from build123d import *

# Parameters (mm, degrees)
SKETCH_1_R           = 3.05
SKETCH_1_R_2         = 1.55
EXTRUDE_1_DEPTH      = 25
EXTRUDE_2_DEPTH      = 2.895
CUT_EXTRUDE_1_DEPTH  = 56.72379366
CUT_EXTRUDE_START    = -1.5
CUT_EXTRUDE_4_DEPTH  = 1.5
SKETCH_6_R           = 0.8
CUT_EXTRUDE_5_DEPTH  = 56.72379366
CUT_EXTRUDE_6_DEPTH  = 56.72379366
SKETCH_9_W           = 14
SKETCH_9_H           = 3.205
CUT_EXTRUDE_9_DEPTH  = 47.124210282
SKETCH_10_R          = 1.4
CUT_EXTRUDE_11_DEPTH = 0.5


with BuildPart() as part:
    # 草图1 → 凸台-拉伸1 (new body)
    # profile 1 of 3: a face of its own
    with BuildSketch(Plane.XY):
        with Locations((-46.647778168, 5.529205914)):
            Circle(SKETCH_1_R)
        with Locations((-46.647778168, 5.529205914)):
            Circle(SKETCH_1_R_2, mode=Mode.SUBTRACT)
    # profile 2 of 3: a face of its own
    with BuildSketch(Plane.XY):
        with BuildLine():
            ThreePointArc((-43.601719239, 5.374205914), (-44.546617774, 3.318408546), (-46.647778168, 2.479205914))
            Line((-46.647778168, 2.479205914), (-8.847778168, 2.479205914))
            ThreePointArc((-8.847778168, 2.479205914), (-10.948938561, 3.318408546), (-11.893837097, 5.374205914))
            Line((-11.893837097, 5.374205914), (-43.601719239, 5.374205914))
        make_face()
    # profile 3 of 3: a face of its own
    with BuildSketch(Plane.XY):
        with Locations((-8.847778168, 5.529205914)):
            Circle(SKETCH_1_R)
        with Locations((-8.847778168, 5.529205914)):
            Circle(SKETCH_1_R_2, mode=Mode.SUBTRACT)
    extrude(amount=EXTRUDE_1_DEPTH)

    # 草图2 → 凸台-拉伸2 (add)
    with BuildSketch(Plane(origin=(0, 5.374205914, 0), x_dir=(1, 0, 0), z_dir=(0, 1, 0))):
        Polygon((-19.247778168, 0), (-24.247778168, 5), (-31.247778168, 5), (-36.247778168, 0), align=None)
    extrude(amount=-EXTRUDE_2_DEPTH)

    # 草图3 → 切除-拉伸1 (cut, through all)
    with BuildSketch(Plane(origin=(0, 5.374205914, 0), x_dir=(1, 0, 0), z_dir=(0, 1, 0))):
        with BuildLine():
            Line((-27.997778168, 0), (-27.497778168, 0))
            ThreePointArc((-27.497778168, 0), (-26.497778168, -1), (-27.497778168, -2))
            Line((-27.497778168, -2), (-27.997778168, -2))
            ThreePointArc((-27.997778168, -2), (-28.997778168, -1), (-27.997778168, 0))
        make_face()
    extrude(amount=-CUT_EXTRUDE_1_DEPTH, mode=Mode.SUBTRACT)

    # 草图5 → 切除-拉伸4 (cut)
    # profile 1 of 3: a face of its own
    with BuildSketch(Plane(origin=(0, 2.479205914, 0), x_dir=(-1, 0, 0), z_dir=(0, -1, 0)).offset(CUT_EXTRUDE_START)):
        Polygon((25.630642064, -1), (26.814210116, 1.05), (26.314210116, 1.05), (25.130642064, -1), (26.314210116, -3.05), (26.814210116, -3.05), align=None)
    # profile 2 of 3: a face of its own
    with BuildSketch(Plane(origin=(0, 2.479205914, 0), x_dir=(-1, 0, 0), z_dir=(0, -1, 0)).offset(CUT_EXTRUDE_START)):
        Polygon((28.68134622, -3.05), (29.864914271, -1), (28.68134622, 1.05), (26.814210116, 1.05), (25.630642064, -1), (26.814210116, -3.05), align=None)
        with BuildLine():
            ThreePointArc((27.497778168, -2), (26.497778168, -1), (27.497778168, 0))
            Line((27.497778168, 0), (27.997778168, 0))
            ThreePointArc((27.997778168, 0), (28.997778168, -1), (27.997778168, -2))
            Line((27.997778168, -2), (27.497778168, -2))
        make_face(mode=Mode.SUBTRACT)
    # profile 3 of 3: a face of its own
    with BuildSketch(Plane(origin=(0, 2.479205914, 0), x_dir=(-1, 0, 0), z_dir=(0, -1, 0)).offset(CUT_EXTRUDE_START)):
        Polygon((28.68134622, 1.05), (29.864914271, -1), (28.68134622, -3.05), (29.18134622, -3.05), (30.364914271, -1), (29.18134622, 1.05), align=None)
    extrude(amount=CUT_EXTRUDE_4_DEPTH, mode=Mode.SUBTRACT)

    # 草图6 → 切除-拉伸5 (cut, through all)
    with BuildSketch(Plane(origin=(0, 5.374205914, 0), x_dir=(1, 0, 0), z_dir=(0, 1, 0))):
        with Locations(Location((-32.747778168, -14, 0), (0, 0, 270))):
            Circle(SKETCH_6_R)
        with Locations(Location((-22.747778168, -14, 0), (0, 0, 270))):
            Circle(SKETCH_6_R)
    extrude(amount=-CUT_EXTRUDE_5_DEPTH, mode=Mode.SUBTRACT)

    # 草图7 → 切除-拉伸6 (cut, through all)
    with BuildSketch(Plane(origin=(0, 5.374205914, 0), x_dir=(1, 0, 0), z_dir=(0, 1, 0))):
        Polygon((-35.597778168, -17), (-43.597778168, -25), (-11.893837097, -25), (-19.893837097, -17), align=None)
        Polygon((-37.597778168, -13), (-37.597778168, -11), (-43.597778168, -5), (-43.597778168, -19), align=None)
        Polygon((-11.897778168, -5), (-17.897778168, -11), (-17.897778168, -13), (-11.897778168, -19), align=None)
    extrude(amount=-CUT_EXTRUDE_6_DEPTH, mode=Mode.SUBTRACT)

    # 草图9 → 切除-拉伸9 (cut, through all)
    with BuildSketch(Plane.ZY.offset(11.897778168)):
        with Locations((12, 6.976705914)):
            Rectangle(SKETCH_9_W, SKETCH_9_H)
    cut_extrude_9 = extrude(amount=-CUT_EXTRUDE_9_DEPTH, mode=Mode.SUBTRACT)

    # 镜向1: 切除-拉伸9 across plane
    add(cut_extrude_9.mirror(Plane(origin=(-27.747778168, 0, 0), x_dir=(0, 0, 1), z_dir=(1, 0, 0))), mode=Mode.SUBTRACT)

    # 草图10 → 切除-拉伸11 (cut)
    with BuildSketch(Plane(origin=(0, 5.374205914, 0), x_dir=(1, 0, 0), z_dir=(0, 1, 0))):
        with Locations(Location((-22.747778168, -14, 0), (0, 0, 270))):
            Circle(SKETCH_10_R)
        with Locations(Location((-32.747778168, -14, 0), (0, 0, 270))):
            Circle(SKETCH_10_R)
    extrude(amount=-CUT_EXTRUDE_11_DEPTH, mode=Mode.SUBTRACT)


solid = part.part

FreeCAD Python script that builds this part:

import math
import FreeCAD as App
import Part
import Sketcher
Q = App.Units.Quantity


def add_polygon(sketch, points):
    """Adds a closed chain of lines whose ends are joined by coincident constraints."""
    first, n = sketch.GeometryCount, len(points)
    for a, b in zip(points, points[1:] + points[:1]):
        sketch.addGeometry(Part.LineSegment(App.Vector(*a, 0), App.Vector(*b, 0)), False)
    for i in range(n):
        sketch.addConstraint(Sketcher.Constraint("Coincident", first + i, 2, first + (i + 1) % n, 1))

doc = App.newDocument("Part")
body = doc.addObject("PartDesign::Body", "Body")

sketch1 = body.newObject("Sketcher::SketchObject", "Sketch")
sketch1.AttachmentSupport = (doc.getObject("XY_Plane"), [""])
sketch1.MapMode = "FlatFace"
sketch1.addGeometry([
    Part.LineSegment(App.Vector(-46.6, 2.5, 0), App.Vector(-8.8, 2.5, 0)),
    Part.ArcOfCircle(Part.Circle(App.Vector(-8.8, 5.5, 0), App.Vector(0, 0, 1), 3), math.radians(-90), math.radians(183)),
    Part.LineSegment(App.Vector(-11.9, 5.4, 0), App.Vector(-43.6, 5.4, 0)),
    Part.ArcOfCircle(Part.Circle(App.Vector(-46.6, 5.5, 0), App.Vector(0, 0, 1), 3), math.radians(-3), math.radians(270)),
    Part.Circle(App.Vector(-46.6, 5.5, 0), App.Vector(0, 0, 1), 1.6),
    Part.Circle(App.Vector(-8.8, 5.5, 0), App.Vector(0, 0, 1), 1.6),
], False)
sketch1.addConstraint([
    Sketcher.Constraint("Tangent", 0, 2, 1, 1),
    Sketcher.Constraint("Coincident", 1, 2, 2, 1),
    Sketcher.Constraint("Coincident", 2, 2, 3, 1),
    Sketcher.Constraint("Tangent", 3, 2, 0, 1),
    Sketcher.Constraint("Horizontal", 0),
    Sketcher.Constraint("Horizontal", 2),
    Sketcher.Constraint("Coincident", 4, 3, 3, 3),
    Sketcher.Constraint("Coincident", 5, 3, 1, 3),
    Sketcher.Constraint("Equal", 1, 3),
    Sketcher.Constraint("Equal", 4, 5),
    Sketcher.Constraint("Diameter", 4, Q("3.1 mm")),
    Sketcher.Constraint("Radius", 1, Q("3.05 mm")),
    Sketcher.Constraint("DistanceX", 0, 1, 0, 2, Q("37.8 mm")),
    Sketcher.Constraint("DistanceY", 1, 2, 1, 3, Q("0.155 mm")),
    Sketcher.Constraint("DistanceX", 1, 3, -1, 1, Q("8.847778 mm")),
    Sketcher.Constraint("DistanceY", -1, 1, 1, 3, Q("5.529206 mm")),
])
pad1 = body.newObject("PartDesign::Pad", "Pad")
pad1.Profile = sketch1
pad1.Length = 25

sketch2 = body.newObject("Sketcher::SketchObject", "Sketch001")
sketch2.AttachmentSupport = (doc.getObject("XZ_Plane"), [""])
sketch2.MapMode = "FlatFace"
sketch2.AttachmentOffset = App.Placement(App.Vector(0, 0, -5.374206), App.Rotation())
add_polygon(sketch2, [(-19, 0), (-24, -5), (-31, -5), (-36, 0)])
sketch2.addConstraint([
    Sketcher.Constraint("Horizontal", 1),
    Sketcher.Constraint("Horizontal", 3),
    Sketcher.Constraint("PointOnObject", 2, 2, -1),
    Sketcher.Constraint("Perpendicular", 0, 2),
    Sketcher.Constraint("Equal", 0, 2),
    Sketcher.Constraint("DistanceX", 1, 2, 1, 1, Q("7 mm")),
    Sketcher.Constraint("DistanceX", 3, 1, 3, 2, Q("17 mm")),
    Sketcher.Constraint("DistanceX", 0, 2, -1, 1, Q("24.247778 mm")),
])
pad2 = body.newObject("PartDesign::Pad", "Pad001")
pad2.Profile = sketch2
pad2.Length = 2.895

sketch3 = body.newObject("Sketcher::SketchObject", "Sketch002")
sketch3.AttachmentSupport = (doc.getObject("XZ_Plane"), [""])
sketch3.MapMode = "FlatFace"
sketch3.AttachmentOffset = App.Placement(App.Vector(0, 0, -5.374206), App.Rotation())
sketch3.addGeometry([
    Part.LineSegment(App.Vector(-27.5, 0, 0), App.Vector(-28, 0, 0)),
    Part.ArcOfCircle(Part.Circle(App.Vector(-28, 1, 0), App.Vector(0, 0, 1), 1), math.radians(90), math.radians(270)),
    Part.LineSegment(App.Vector(-28, 2, 0), App.Vector(-27.5, 2, 0)),
    Part.ArcOfCircle(Part.Circle(App.Vector(-27.5, 1, 0), App.Vector(0, 0, 1), 1), math.radians(-90), math.radians(90)),
], False)
sketch3.addConstraint([
    Sketcher.Constraint("Tangent", 0, 2, 1, 2),
    Sketcher.Constraint("Tangent", 1, 1, 2, 1),
    Sketcher.Constraint("Tangent", 2, 2, 3, 2),
    Sketcher.Constraint("Tangent", 3, 1, 0, 1),
    Sketcher.Constraint("Horizontal", 0),
    Sketcher.Constraint("Horizontal", 2),
    Sketcher.Constraint("PointOnObject", 0, 2, -1),
    Sketcher.Constraint("Radius", 1, Q("1 mm")),
    Sketcher.Constraint("DistanceX", 0, 2, 0, 1, Q("0.5 mm")),
    Sketcher.Constraint("DistanceX", 1, 3, -1, 1, Q("27.997778 mm")),
])
pocket1 = body.newObject("PartDesign::Pocket", "Pocket")
pocket1.Profile = sketch3
pocket1.Type = "ThroughAll"
pocket1.Reversed = True

sketch4 = body.newObject("Sketcher::SketchObject", "Sketch003")
sketch4.AttachmentSupport = (doc.getObject("XZ_Plane"), [""])
sketch4.MapMode = "FlatFace"
sketch4.AttachmentOffset = App.Placement(App.Vector(0, 0, -3.979206), App.Rotation())
add_polygon(sketch4, [(-26.3, -1.1), (-25.1, 1), (-26.3, 3), (-29.2, 3), (-30.4, 1), (-29.2, -1.1)])
sketch4.addGeometry(Part.LineSegment(App.Vector(-27.5, 0, 0), App.Vector(-28, 0, 0)), False)
sketch4.addGeometry(Part.ArcOfCircle(Part.Circle(App.Vector(-28, 1, 0), App.Vector(0, 0, 1), 1), math.radians(90), math.radians(270)), False)
sketch4.addGeometry(Part.LineSegment(App.Vector(-28, 2, 0), App.Vector(-27.5, 2, 0)), False)
sketch4.addGeometry(Part.ArcOfCircle(Part.Circle(App.Vector(-27.5, 1, 0), App.Vector(0, 0, 1), 1), math.radians(-90), math.radians(90)), False)
sketch4.addConstraint([
    Sketcher.Constraint("Tangent", 6, 2, 7, 2),
    Sketcher.Constraint("Tangent", 7, 1, 8, 1),
    Sketcher.Constraint("Tangent", 8, 2, 9, 2),
    Sketcher.Constraint("Tangent", 9, 1, 6, 1),
    Sketcher.Constraint("Horizontal", 2),
    Sketcher.Constraint("Horizontal", 5),
    Sketcher.Constraint("Horizontal", 6),
    Sketcher.Constraint("Horizontal", 8),
    Sketcher.Constraint("PointOnObject", 6, 2, -1),
    Sketcher.Constraint("Parallel", 0, 3),
    Sketcher.Constraint("Parallel", 1, 4),
    Sketcher.Constraint("Horizontal", 9, 3, 0, 2),
    Sketcher.Constraint("Horizontal", 0, 2, 3, 2),
    Sketcher.Constraint("Vertical", 2, 2, 4, 2),
    Sketcher.Constraint("Vertical", 1, 2, 5, 2),
    Sketcher.Constraint("Radius", 7, Q("1 mm")),
    Sketcher.Constraint("Angle", 0, Q("60 deg")),
    Sketcher.Constraint("DistanceX", 6, 2, 6, 1, Q("0.5 mm")),
    Sketcher.Constraint("DistanceY", 4, 2, 2, 2, Q("4.1 mm")),
    Sketcher.Constraint("DistanceX", 2, 2, 2, 1, Q("2.867136 mm")),
    Sketcher.Constraint("DistanceX", 7, 3, -1, 1, Q("27.997778 mm")),
    Sketcher.Constraint("DistanceX", 1, 2, -1, 1, Q("26.31421 mm")),
])
pocket2 = body.newObject("PartDesign::Pocket", "Pocket001")
pocket2.Profile = sketch4
pocket2.Length = 1.5
pocket2.Reversed = True

sketch5 = body.newObject("Sketcher::SketchObject", "Sketch004")
sketch5.AttachmentSupport = (doc.getObject("XZ_Plane"), [""])
sketch5.MapMode = "FlatFace"
sketch5.AttachmentOffset = App.Placement(App.Vector(0, 0, -5.374206), App.Rotation())
sketch5.addGeometry([
    Part.Circle(App.Vector(-32.7, 14, 0), App.Vector(0, 0, 1), 0.8),
    Part.Circle(App.Vector(-22.7, 14, 0), App.Vector(0, 0, 1), 0.8),
], False)
sketch5.addConstraint([
    Sketcher.Constraint("Equal", 0, 1),
    Sketcher.Constraint("Horizontal", 0, 3, 1, 3),
    Sketcher.Constraint("Diameter", 0, Q("1.6 mm")),
    Sketcher.Constraint("DistanceY", -1, 1, 0, 3, Q("14 mm")),
    Sketcher.Constraint("DistanceX", 0, 3, 1, 3, Q("10 mm")),
    Sketcher.Constraint("DistanceX", 0, 3, -1, 1, Q("32.747778 mm")),
])
pocket3 = body.newObject("PartDesign::Pocket", "Pocket002")
pocket3.Profile = sketch5
pocket3.Type = "ThroughAll"
pocket3.Reversed = True

sketch6 = body.newObject("Sketcher::SketchObject", "Sketch005")
sketch6.AttachmentSupport = (doc.getObject("XZ_Plane"), [""])
sketch6.MapMode = "FlatFace"
sketch6.AttachmentOffset = App.Placement(App.Vector(0, 0, -5.374206), App.Rotation())
add_polygon(sketch6, [(-35.6, 17), (-43.6, 25), (-11.9, 25), (-19.9, 17)])
add_polygon(sketch6, [(-37.6, 13), (-37.6, 11), (-43.6, 5), (-43.6, 19)])
add_polygon(sketch6, [(-11.9, 5), (-17.9, 11), (-17.9, 13), (-11.9, 19)])
sketch6.addConstraint([
    Sketcher.Constraint("Horizontal", 1),
    Sketcher.Constraint("Horizontal", 3),
    Sketcher.Constraint("Vertical", 4),
    Sketcher.Constraint("Vertical", 6),
    Sketcher.Constraint("Vertical", 9),
    Sketcher.Constraint("Vertical", 11),
    Sketcher.Constraint("Perpendicular", 0, 2),
    Sketcher.Constraint("Parallel", 2, 5),
    Sketcher.Constraint("Perpendicular", 5, 7),
    Sketcher.Constraint("Parallel", 7, 8),
    Sketcher.Constraint("Perpendicular", 8, 10),
    Sketcher.Constraint("Horizontal", 4, 2, 8, 2),
    Sketcher.Constraint("Horizontal", 7, 2, 9, 2),
    Sketcher.Constraint("Horizontal", 6, 2, 10, 2),
    Sketcher.Constraint("Horizontal", 5, 2, 11, 2),
    Sketcher.Constraint("Vertical", 0, 2, 5, 2),
    Sketcher.Constraint("DistanceY", 4, 2, 4, 1, Q("2 mm")),
    Sketcher.Constraint("DistanceY", 6, 1, 6, 2, Q("14 mm")),
    Sketcher.Constraint("DistanceY", -1, 1, 0, 2, Q("25 mm")),
    Sketcher.Constraint("DistanceY", -1, 1, 2, 2, Q("17 mm")),
    Sketcher.Constraint("DistanceY", -1, 1, 4, 2, Q("11 mm")),
    Sketcher.Constraint("DistanceX", 3, 2, 8, 2, Q("17.7 mm")),
    Sketcher.Constraint("DistanceX", 1, 1, 1, 2, Q("31.703941 mm")),
    Sketcher.Constraint("DistanceX", 0, 2, -1, 1, Q("43.597778 mm")),
])
pocket4 = body.newObject("PartDesign::Pocket", "Pocket003")
pocket4.Profile = sketch6
pocket4.Type = "ThroughAll"
pocket4.Reversed = True

sketch7 = body.newObject("Sketcher::SketchObject", "Sketch006")
sketch7.AttachmentSupport = (doc.getObject("YZ_Plane"), [""])
sketch7.MapMode = "FlatFace"
sketch7.AttachmentOffset = App.Placement(App.Vector(0, 0, -11.897778), App.Rotation())
add_polygon(sketch7, [(8.6, 5), (5.4, 5), (5.4, 19), (8.6, 19)])
sketch7.addConstraint([
    Sketcher.Constraint("Horizontal", 0),
    Sketcher.Constraint("Vertical", 1),
    Sketcher.Constraint("Horizontal", 2),
    Sketcher.Constraint("Vertical", 3),
    Sketcher.Constraint("DistanceY", 1, 1, 1, 2, Q("14 mm")),
    Sketcher.Constraint("DistanceY", -1, 1, 0, 2, Q("5 mm")),
    Sketcher.Constraint("DistanceX", 0, 2, 0, 1, Q("3.205 mm")),
    Sketcher.Constraint("DistanceX", -1, 1, 0, 2, Q("5.374206 mm")),
])
pocket5 = body.newObject("PartDesign::Pocket", "Pocket004")
pocket5.Profile = sketch7
pocket5.Type = "ThroughAll"
pocket5.Reversed = True
doc.recompute()

datumplane = body.newObject("PartDesign::Plane", "DatumPlane")
datumplane.AttachmentSupport = (doc.getObject("YZ_Plane"), [""])
datumplane.MapMode = "FlatFace"
datumplane.AttachmentOffset = App.Placement(App.Vector(0, 0, -27.747778), App.Rotation())
mirrored = body.newObject("PartDesign::Mirrored", "Mirrored")
mirrored.Originals = [pocket5]
mirrored.MirrorPlane = (datumplane, [""])
body.Tip = mirrored

sketch8 = body.newObject("Sketcher::SketchObject", "Sketch007")
sketch8.AttachmentSupport = (doc.getObject("XZ_Plane"), [""])
sketch8.MapMode = "FlatFace"
sketch8.AttachmentOffset = App.Placement(App.Vector(0, 0, -5.374206), App.Rotation())
sketch8.addGeometry([
    Part.Circle(App.Vector(-22.7, 14, 0), App.Vector(0, 0, 1), 1.4),
    Part.Circle(App.Vector(-32.7, 14, 0), App.Vector(0, 0, 1), 1.4),
], False)
sketch8.addConstraint([
    Sketcher.Constraint("Equal", 0, 1),
    Sketcher.Constraint("Horizontal", 0, 3, 1, 3),
    Sketcher.Constraint("Diameter", 0, Q("2.8 mm")),
    Sketcher.Constraint("DistanceY", -1, 1, 0, 3, Q("14 mm")),
    Sketcher.Constraint("DistanceX", 1, 3, 0, 3, Q("10 mm")),
    Sketcher.Constraint("DistanceX", 0, 3, -1, 1, Q("22.747778 mm")),
])
pocket6 = body.newObject("PartDesign::Pocket", "Pocket005")
pocket6.Profile = sketch8
pocket6.Length = 0.5
pocket6.Reversed = True

doc.recompute()
